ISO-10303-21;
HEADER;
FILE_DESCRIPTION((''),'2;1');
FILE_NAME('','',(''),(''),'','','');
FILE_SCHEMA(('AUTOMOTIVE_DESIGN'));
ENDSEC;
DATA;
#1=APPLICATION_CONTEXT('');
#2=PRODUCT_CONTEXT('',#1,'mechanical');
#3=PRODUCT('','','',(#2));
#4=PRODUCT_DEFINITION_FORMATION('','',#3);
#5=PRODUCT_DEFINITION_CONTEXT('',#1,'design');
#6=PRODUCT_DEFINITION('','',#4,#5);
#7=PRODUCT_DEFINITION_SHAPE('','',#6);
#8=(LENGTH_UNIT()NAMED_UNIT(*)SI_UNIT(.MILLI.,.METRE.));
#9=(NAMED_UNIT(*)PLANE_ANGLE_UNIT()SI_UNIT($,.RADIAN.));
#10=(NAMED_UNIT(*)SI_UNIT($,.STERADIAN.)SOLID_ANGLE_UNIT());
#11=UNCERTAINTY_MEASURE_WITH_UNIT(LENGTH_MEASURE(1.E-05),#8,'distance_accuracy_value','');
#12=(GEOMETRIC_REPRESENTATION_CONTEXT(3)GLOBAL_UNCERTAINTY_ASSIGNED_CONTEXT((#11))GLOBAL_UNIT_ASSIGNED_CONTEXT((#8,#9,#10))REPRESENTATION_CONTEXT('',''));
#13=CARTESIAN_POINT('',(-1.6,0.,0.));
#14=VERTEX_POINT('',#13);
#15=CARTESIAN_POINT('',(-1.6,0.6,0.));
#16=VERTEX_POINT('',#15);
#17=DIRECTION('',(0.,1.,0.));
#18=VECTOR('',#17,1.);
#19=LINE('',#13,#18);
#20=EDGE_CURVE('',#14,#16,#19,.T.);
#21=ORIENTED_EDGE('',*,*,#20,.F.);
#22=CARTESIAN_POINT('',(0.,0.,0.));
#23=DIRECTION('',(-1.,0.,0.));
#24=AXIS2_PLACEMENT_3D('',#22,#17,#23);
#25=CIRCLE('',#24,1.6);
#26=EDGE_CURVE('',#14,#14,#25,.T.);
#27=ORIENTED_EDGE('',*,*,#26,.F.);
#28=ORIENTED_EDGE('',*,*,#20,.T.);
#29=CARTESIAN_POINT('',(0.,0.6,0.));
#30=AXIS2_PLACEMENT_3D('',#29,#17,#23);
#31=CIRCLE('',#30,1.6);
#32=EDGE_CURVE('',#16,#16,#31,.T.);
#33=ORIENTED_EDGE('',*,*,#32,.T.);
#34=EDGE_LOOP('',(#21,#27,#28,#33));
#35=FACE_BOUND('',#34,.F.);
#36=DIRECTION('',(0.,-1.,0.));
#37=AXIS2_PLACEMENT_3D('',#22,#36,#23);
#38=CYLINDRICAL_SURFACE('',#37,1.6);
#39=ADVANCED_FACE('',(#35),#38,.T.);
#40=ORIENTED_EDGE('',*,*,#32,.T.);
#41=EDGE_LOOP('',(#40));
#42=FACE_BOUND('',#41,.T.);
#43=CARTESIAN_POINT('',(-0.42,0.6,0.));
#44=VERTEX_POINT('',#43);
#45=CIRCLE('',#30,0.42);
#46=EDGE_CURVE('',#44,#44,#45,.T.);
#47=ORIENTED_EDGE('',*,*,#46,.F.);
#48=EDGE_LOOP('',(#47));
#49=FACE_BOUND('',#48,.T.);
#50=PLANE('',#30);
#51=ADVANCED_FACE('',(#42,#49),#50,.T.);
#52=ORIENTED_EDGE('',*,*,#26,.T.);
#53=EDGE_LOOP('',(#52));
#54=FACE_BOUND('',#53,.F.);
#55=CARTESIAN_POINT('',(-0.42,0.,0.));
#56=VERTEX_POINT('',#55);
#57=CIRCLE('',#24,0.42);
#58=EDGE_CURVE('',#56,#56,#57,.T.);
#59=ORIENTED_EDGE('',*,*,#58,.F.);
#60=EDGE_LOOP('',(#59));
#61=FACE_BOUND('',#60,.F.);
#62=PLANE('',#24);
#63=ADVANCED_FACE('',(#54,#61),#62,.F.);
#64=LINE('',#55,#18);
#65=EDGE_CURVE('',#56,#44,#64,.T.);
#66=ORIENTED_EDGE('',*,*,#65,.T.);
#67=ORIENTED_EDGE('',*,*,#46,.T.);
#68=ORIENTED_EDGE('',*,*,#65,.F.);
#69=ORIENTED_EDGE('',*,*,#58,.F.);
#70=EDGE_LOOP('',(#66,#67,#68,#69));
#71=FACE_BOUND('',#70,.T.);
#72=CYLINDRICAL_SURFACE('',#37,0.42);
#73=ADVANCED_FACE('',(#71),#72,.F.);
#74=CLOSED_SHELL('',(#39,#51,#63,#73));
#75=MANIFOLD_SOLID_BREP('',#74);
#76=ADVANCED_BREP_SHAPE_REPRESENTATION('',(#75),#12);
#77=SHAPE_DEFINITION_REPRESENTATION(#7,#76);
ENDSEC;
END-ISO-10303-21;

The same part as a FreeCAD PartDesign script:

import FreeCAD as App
import Part
import Sketcher

V = App.Vector

doc = App.newDocument("Part")
body = doc.addObject("PartDesign::Body", "Body")

sketch1 = doc.addObject("Sketcher::SketchObject", "Sketch")
body.addObject(sketch1)
sketch1.AttachmentSupport = (doc.XZ_Plane, [""])
sketch1.MapMode = "FlatFace"
sketch1.addGeometry([
    Part.Circle(V(0, 0, 0), V(0, 0, 1), 1.6),
    Part.Circle(V(0, 0, 0), V(0, 0, 1), 0.42),
], False)
sketch1.addConstraint([
    Sketcher.Constraint("Coincident", 0, 3, -1, 1),
    Sketcher.Constraint("Coincident", 1, 3, -1, 1),
    Sketcher.Constraint("Diameter", 0, 3.2),
    Sketcher.Constraint("Diameter", 1, 0.84),
])
pad1 = doc.addObject("PartDesign::Pad", "Pad")
body.addObject(pad1)
pad1.Profile = sketch1
pad1.Length = 0.6
pad1.Reversed = True

doc.recompute()
